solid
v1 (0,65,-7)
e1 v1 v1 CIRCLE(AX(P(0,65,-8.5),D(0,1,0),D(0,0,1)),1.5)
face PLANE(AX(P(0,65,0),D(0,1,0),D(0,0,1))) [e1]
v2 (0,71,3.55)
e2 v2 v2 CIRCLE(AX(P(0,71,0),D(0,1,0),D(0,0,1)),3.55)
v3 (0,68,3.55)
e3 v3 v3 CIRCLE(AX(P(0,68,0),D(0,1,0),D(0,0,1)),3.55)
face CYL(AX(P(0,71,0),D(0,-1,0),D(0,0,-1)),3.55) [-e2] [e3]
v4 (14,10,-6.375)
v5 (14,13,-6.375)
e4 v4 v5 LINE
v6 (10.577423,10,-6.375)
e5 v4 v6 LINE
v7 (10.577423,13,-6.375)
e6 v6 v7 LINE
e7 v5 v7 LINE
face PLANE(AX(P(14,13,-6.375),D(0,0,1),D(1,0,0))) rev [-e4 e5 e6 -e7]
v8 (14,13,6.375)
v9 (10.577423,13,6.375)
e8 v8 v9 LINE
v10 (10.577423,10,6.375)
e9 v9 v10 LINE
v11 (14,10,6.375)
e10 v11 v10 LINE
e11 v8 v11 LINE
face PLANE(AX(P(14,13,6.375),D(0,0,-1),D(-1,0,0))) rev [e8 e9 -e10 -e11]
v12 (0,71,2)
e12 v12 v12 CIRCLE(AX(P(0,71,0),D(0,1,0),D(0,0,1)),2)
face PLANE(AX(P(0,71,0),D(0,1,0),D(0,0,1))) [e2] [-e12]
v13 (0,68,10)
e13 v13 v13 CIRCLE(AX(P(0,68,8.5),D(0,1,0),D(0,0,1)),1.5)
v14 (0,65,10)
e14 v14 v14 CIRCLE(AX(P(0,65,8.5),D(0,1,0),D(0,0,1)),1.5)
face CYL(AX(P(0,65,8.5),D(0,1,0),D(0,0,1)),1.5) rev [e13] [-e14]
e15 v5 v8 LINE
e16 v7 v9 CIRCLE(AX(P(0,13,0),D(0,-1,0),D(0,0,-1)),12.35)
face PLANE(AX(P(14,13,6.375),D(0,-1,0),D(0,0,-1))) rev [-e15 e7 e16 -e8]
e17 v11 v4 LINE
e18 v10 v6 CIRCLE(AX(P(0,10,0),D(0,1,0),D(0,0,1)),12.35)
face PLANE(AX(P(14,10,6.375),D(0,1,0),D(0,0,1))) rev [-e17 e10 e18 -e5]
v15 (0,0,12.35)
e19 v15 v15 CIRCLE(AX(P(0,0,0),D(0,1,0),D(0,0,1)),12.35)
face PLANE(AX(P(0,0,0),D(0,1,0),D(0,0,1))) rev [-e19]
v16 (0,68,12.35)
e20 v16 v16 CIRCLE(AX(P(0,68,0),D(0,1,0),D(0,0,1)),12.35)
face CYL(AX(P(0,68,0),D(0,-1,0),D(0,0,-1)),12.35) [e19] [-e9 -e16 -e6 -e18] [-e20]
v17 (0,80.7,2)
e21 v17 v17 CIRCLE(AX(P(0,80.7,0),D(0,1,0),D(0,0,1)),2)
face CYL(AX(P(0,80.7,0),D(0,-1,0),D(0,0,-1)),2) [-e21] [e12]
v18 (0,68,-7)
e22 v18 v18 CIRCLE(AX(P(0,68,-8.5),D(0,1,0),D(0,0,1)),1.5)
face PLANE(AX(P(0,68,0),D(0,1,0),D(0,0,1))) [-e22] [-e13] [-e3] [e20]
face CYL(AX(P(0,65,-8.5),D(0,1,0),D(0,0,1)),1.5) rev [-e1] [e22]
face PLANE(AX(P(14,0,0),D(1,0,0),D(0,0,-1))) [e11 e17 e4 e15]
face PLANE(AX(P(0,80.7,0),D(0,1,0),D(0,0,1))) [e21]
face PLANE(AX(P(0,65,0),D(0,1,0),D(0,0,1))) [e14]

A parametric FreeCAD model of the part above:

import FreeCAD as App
import Part
import Sketcher
from FreeCAD import Vector
Q = App.Units.Quantity


def add_polygon(sketch, points):
    """Adds a closed chain of lines whose ends are joined by coincident constraints."""
    first, n = sketch.GeometryCount, len(points)
    for a, b in zip(points, points[1:] + points[:1]):
        sketch.addGeometry(Part.LineSegment(App.Vector(*a, 0), App.Vector(*b, 0)), False)
    for i in range(n):
        sketch.addConstraint(Sketcher.Constraint("Coincident", first + i, 2, first + (i + 1) % n, 1))

doc = App.newDocument("Part")
params = doc.addObject("Spreadsheet::Sheet", "Params")
for row, (alias, value) in enumerate([
    ("sketch1_diameter", "24.7 mm"),
    ("pad1_length", "68 mm"),
    ("sketch2_diameter", "7.1 mm"),
    ("pad2_length", "3 mm"),
    ("sketch3_diameter", "4 mm"),
    ("pad3_length", "9.7 mm"),
    ("sketch4_width", "3 mm"),
    ("sketch4_height", "12.75 mm"),
    ("pad4_length", "14 mm"),
    ("sketch5_diameter", "3 mm"),
    ("pocket1_length", "3 mm"),
], start=1):
    params.set(f"A{row}", alias)
    params.set(f"B{row}", "=" + value)
    params.setAlias(f"B{row}", alias)

body = doc.addObject("PartDesign::Body", "Body")

sketch1 = doc.addObject("Sketcher::SketchObject", "Sketch")
body.addObject(sketch1)
sketch1.AttachmentSupport = (doc.XZ_Plane, [""])
sketch1.MapMode = "FlatFace"
sketch1.addGeometry(Part.Circle(Vector(0, 0, 0), Vector(0, 0, 1), 12.35), False)
sketch1.addConstraint(Sketcher.Constraint("Coincident", 0, 3, -1, 1))
sketch1.addConstraint(Sketcher.Constraint("Diameter", 0, Q("24.7 mm")))
sketch1.setExpression("Constraints[1]", "Params.sketch1_diameter")
pad1 = doc.addObject("PartDesign::Pad", "Pad")
body.addObject(pad1)
pad1.Profile = sketch1
pad1.setExpression("Length", "Params.pad1_length")
pad1.Reversed = True

sketch2 = doc.addObject("Sketcher::SketchObject", "Sketch001")
body.addObject(sketch2)
sketch2.AttachmentSupport = (doc.XZ_Plane, [""])
sketch2.MapMode = "FlatFace"
sketch2.AttachmentOffset = App.Placement(Vector(0, 0, -68), App.Rotation())
sketch2.addGeometry(Part.Circle(Vector(0, 0, 0), Vector(0, 0, 1), 3.55), False)
sketch2.addConstraint(Sketcher.Constraint("Coincident", 0, 3, -1, 1))
sketch2.addConstraint(Sketcher.Constraint("Diameter", 0, Q("7.1 mm")))
sketch2.setExpression("Constraints[1]", "Params.sketch2_diameter")
pad2 = doc.addObject("PartDesign::Pad", "Pad001")
body.addObject(pad2)
pad2.Profile = sketch2
pad2.setExpression("Length", "Params.pad2_length")
pad2.Reversed = True

sketch3 = doc.addObject("Sketcher::SketchObject", "Sketch002")
body.addObject(sketch3)
sketch3.AttachmentSupport = (doc.XZ_Plane, [""])
sketch3.MapMode = "FlatFace"
sketch3.AttachmentOffset = App.Placement(Vector(0, 0, -71), App.Rotation())
sketch3.addGeometry(Part.Circle(Vector(0, 0, 0), Vector(0, 0, 1), 2), False)
sketch3.addConstraint(Sketcher.Constraint("Coincident", 0, 3, -1, 1))
sketch3.addConstraint(Sketcher.Constraint("Diameter", 0, Q("4 mm")))
sketch3.setExpression("Constraints[1]", "Params.sketch3_diameter")
pad3 = doc.addObject("PartDesign::Pad", "Pad002")
body.addObject(pad3)
pad3.Profile = sketch3
pad3.setExpression("Length", "Params.pad3_length")
pad3.Reversed = True

sketch4 = doc.addObject("Sketcher::SketchObject", "Sketch003")
body.addObject(sketch4)
sketch4.AttachmentSupport = (doc.YZ_Plane, [""])
sketch4.MapMode = "FlatFace"
add_polygon(sketch4, [(13, 6.375), (10, 6.375), (10, -6.375), (13, -6.375)])
sketch4.addConstraint(Sketcher.Constraint("Horizontal", 0))
sketch4.addConstraint(Sketcher.Constraint("Vertical", 1))
sketch4.addConstraint(Sketcher.Constraint("Horizontal", 2))
sketch4.addConstraint(Sketcher.Constraint("Vertical", 3))
sketch4.addConstraint(Sketcher.Constraint("DistanceX", 0, 2, 0, 1, Q("3 mm")))
sketch4.addConstraint(Sketcher.Constraint("DistanceX", -1, 1, 0, 2, Q("10 mm")))
sketch4.addConstraint(Sketcher.Constraint("DistanceY", 1, 2, 1, 1, Q("12.75 mm")))
sketch4.addConstraint(Sketcher.Constraint("DistanceY", -1, 1, 0, 2, Q("6.375 mm")))
sketch4.setExpression("Constraints[8]", "Params.sketch4_width")
sketch4.setExpression("Constraints[10]", "Params.sketch4_height")
pad4 = doc.addObject("PartDesign::Pad", "Pad003")
body.addObject(pad4)
pad4.Profile = sketch4
pad4.setExpression("Length", "Params.pad4_length")

sketch5 = doc.addObject("Sketcher::SketchObject", "Sketch004")
body.addObject(sketch5)
sketch5.AttachmentSupport = (doc.XZ_Plane, [""])
sketch5.MapMode = "FlatFace"
sketch5.AttachmentOffset = App.Placement(Vector(0, 0, -68), App.Rotation())
sketch5.addGeometry(Part.Circle(Vector(0, -8.5, 0), Vector(0, 0, 1), 1.5), False)
sketch5.addGeometry(Part.Circle(Vector(0, 8.5, 0), Vector(0, 0, 1), 1.5), False)
sketch5.addConstraint(Sketcher.Constraint("Equal", 0, 1))
sketch5.addConstraint(Sketcher.Constraint("Symmetric", 0, 3, 1, 3, -1, 1))
sketch5.addConstraint(Sketcher.Constraint("PointOnObject", 0, 3, -2))
sketch5.addConstraint(Sketcher.Constraint("Diameter", 0, Q("3 mm")))
sketch5.addConstraint(Sketcher.Constraint("DistanceY", 0, 3, 1, 3, Q("17 mm")))
sketch5.setExpression("Constraints[3]", "Params.sketch5_diameter")
pocket1 = doc.addObject("PartDesign::Pocket", "Pocket")
body.addObject(pocket1)
pocket1.Profile = sketch5
pocket1.setExpression("Length", "Params.pocket1_length")
pocket1.Reversed = True

doc.recompute()
